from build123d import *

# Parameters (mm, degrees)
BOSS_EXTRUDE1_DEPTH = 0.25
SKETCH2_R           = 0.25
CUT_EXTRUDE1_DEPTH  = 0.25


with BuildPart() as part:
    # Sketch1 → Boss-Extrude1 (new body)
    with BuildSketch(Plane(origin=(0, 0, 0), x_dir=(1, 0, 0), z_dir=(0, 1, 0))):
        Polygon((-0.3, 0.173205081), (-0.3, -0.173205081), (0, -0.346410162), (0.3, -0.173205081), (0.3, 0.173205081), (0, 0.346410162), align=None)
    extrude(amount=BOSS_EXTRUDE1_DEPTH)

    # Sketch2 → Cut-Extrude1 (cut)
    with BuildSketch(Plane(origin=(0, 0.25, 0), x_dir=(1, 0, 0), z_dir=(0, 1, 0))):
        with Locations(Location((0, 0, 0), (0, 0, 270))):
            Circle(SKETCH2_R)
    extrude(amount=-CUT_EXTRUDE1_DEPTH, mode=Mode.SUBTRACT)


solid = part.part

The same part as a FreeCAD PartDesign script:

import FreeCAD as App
import Part
import Sketcher
Q = App.Units.Quantity


def add_polygon(sketch, points):
    """Adds a closed chain of lines whose ends are joined by coincident constraints."""
    first, n = sketch.GeometryCount, len(points)
    for a, b in zip(points, points[1:] + points[:1]):
        sketch.addGeometry(Part.LineSegment(App.Vector(*a, 0), App.Vector(*b, 0)), False)
    for i in range(n):
        sketch.addConstraint(Sketcher.Constraint("Coincident", first + i, 2, first + (i + 1) % n, 1))

doc = App.newDocument("Part")
body = doc.addObject("PartDesign::Body", "Body")

# Sketch on XZ plane
sketch1 = body.newObject("Sketcher::SketchObject", "Sketch")
sketch1.AttachmentSupport = (doc.getObject("XZ_Plane"), [""])
sketch1.MapMode = "FlatFace"
add_polygon(sketch1, [(-0.3, -0.17), (-0.3, 0.17), (0, 0.35), (0.3, 0.17), (0.3, -0.17), (0, -0.35)])  # lines 0-5
sketch1.addConstraint([
    Sketcher.Constraint("Vertical", 0),
    Sketcher.Constraint("Vertical", 3),
    Sketcher.Constraint("Symmetric", 0, 2, 3, 2, -1, 1),
    Sketcher.Constraint("Symmetric", 1, 2, 4, 2, -1, 1),
    Sketcher.Constraint("PointOnObject", 1, 2, -2),
    Sketcher.Constraint("Parallel", 2, 5),
    Sketcher.Constraint("Horizontal", 0, 2, 2, 2),
    Sketcher.Constraint("Angle", 1, Q("30 deg")),
    Sketcher.Constraint("DistanceX", 0, 2, -1, 1, 0.3),
    Sketcher.Constraint("DistanceY", 0, 1, 0, 2, 0.34641),
])
pad1 = body.newObject("PartDesign::Pad", "Pad")
pad1.Profile = sketch1
pad1.Length = 0.25
pad1.Reversed = True

# Sketch on XZ plane
sketch2 = body.newObject("Sketcher::SketchObject", "Sketch001")
sketch2.AttachmentSupport = (doc.getObject("XZ_Plane"), [""])
sketch2.MapMode = "FlatFace"
sketch2.AttachmentOffset = App.Placement(App.Vector(0, 0, -0.25), App.Rotation())
sketch2.addGeometry(Part.Circle(App.Vector(0, 0, 0), App.Vector(0, 0, 1), 0.25), False)
sketch2.addConstraint([
    Sketcher.Constraint("Coincident", 0, 3, -1, 1),
    Sketcher.Constraint("Diameter", 0, 0.5),
])
pocket1 = body.newObject("PartDesign::Pocket", "Pocket")
pocket1.Profile = sketch2
pocket1.Length = 0.25
pocket1.Reversed = True

doc.recompute()
